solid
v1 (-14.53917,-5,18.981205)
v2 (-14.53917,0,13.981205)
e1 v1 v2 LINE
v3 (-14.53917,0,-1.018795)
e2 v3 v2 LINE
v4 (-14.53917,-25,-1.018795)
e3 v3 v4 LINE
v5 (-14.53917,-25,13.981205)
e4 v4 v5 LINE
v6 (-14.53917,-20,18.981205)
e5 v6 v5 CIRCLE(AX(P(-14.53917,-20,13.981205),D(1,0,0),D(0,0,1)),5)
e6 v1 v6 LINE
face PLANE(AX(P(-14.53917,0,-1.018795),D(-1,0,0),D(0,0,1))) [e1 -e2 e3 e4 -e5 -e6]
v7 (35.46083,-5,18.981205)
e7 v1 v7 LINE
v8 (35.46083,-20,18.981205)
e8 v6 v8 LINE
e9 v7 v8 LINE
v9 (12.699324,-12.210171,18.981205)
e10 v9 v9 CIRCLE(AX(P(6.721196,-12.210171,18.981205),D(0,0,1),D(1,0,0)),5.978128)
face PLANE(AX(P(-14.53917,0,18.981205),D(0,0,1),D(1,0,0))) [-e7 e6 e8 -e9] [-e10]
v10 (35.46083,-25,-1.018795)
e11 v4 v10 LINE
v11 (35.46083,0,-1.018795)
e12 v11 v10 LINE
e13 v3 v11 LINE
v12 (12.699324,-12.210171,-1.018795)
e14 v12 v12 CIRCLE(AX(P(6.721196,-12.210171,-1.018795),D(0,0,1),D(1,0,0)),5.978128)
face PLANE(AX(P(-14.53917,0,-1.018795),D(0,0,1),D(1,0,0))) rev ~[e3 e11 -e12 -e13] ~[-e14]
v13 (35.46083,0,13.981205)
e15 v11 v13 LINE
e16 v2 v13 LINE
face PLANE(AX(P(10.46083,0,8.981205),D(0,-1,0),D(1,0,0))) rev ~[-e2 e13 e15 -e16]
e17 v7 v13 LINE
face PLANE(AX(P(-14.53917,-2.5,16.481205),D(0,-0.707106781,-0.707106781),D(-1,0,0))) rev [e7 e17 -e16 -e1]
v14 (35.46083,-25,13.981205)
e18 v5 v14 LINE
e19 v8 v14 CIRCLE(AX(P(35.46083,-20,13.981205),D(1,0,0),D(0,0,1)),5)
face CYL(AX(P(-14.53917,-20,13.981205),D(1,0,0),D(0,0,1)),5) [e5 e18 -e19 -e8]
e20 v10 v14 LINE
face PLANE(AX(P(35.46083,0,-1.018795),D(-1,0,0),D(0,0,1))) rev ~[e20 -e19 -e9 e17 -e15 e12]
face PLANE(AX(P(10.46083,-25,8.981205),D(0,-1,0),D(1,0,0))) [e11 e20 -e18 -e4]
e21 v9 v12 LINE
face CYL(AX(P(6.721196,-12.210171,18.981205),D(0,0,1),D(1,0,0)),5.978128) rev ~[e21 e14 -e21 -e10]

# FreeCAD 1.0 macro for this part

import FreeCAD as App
import Part
import Sketcher
from FreeCAD import Vector


def edges_at(feature, points):
    """Names of the edges that pass closest to the given points."""
    edges = feature.Shape.Edges
    near = lambda p: min(range(len(edges)), key=lambda i: edges[i].distToShape(Part.Vertex(*p))[0])
    return sorted({f"Edge{near(p) + 1}" for p in points})

doc = App.newDocument("Part")
body = doc.addObject("PartDesign::Body", "Body")

sketch1 = body.newObject("Sketcher::SketchObject", "Sketch")
sketch1.AttachmentSupport = (doc.getObject("XZ_Plane"), [""])
sketch1.MapMode = "FlatFace"
sketch1.addGeometry([
    Part.LineSegment(Vector(-15, 19, 0), Vector(-15, -1, 0)),
    Part.LineSegment(Vector(-15, -1, 0), Vector(35, -1, 0)),
    Part.LineSegment(Vector(35, -1, 0), Vector(35, 19, 0)),
    Part.LineSegment(Vector(35, 19, 0), Vector(-15, 19, 0)),
], False)
sketch1.addConstraint([
    Sketcher.Constraint("Coincident", 0, 2, 1, 1),
    Sketcher.Constraint("Coincident", 1, 2, 2, 1),
    Sketcher.Constraint("Coincident", 2, 2, 3, 1),
    Sketcher.Constraint("Coincident", 3, 2, 0, 1),
    Sketcher.Constraint("Vertical", 0),
    Sketcher.Constraint("Horizontal", 1),
    Sketcher.Constraint("Vertical", 2),
    Sketcher.Constraint("Horizontal", 3),
    Sketcher.Constraint("DistanceX", 1, 1, 1, 2, 50.0),
    Sketcher.Constraint("DistanceY", 0, 2, 0, 1, 20.0),
    Sketcher.Constraint("DistanceX", 0, 2, -1, 1, 14.53917),
    Sketcher.Constraint("DistanceY", 0, 2, -1, 1, 1.018795),
])
pad1 = body.newObject("PartDesign::Pad", "Pad")
pad1.Profile = sketch1
pad1.Length = 25
doc.recompute()

fillet = body.newObject("PartDesign::Fillet", "Fillet")
fillet.Base = (pad1, edges_at(pad1, [(10.461, -25, 18.981)]))
fillet.Radius = 5
doc.recompute()

chamfer = body.newObject("PartDesign::Chamfer", "Chamfer")
chamfer.Base = (fillet, edges_at(fillet, [(10.461, 0, 18.981)]))
chamfer.Size = 5

sketch2 = body.newObject("Sketcher::SketchObject", "Sketch001")
sketch2.AttachmentSupport = (doc.getObject("XY_Plane"), [""])
sketch2.MapMode = "FlatFace"
sketch2.AttachmentOffset = App.Placement(Vector(0, 0, 18.981205), App.Rotation())
sketch2.addGeometry(Part.Circle(Vector(7, -12, 0), Vector(0, 0, 1), 6), False)
sketch2.addConstraint([
    Sketcher.Constraint("Diameter", 0, 11.956256),
    Sketcher.Constraint("DistanceY", 0, 3, -1, 1, 12.210171),
    Sketcher.Constraint("DistanceX", -1, 1, 0, 3, 6.721196),
])
pocket1 = body.newObject("PartDesign::Pocket", "Pocket")
pocket1.Profile = sketch2
pocket1.Length = 25

doc.recompute()
